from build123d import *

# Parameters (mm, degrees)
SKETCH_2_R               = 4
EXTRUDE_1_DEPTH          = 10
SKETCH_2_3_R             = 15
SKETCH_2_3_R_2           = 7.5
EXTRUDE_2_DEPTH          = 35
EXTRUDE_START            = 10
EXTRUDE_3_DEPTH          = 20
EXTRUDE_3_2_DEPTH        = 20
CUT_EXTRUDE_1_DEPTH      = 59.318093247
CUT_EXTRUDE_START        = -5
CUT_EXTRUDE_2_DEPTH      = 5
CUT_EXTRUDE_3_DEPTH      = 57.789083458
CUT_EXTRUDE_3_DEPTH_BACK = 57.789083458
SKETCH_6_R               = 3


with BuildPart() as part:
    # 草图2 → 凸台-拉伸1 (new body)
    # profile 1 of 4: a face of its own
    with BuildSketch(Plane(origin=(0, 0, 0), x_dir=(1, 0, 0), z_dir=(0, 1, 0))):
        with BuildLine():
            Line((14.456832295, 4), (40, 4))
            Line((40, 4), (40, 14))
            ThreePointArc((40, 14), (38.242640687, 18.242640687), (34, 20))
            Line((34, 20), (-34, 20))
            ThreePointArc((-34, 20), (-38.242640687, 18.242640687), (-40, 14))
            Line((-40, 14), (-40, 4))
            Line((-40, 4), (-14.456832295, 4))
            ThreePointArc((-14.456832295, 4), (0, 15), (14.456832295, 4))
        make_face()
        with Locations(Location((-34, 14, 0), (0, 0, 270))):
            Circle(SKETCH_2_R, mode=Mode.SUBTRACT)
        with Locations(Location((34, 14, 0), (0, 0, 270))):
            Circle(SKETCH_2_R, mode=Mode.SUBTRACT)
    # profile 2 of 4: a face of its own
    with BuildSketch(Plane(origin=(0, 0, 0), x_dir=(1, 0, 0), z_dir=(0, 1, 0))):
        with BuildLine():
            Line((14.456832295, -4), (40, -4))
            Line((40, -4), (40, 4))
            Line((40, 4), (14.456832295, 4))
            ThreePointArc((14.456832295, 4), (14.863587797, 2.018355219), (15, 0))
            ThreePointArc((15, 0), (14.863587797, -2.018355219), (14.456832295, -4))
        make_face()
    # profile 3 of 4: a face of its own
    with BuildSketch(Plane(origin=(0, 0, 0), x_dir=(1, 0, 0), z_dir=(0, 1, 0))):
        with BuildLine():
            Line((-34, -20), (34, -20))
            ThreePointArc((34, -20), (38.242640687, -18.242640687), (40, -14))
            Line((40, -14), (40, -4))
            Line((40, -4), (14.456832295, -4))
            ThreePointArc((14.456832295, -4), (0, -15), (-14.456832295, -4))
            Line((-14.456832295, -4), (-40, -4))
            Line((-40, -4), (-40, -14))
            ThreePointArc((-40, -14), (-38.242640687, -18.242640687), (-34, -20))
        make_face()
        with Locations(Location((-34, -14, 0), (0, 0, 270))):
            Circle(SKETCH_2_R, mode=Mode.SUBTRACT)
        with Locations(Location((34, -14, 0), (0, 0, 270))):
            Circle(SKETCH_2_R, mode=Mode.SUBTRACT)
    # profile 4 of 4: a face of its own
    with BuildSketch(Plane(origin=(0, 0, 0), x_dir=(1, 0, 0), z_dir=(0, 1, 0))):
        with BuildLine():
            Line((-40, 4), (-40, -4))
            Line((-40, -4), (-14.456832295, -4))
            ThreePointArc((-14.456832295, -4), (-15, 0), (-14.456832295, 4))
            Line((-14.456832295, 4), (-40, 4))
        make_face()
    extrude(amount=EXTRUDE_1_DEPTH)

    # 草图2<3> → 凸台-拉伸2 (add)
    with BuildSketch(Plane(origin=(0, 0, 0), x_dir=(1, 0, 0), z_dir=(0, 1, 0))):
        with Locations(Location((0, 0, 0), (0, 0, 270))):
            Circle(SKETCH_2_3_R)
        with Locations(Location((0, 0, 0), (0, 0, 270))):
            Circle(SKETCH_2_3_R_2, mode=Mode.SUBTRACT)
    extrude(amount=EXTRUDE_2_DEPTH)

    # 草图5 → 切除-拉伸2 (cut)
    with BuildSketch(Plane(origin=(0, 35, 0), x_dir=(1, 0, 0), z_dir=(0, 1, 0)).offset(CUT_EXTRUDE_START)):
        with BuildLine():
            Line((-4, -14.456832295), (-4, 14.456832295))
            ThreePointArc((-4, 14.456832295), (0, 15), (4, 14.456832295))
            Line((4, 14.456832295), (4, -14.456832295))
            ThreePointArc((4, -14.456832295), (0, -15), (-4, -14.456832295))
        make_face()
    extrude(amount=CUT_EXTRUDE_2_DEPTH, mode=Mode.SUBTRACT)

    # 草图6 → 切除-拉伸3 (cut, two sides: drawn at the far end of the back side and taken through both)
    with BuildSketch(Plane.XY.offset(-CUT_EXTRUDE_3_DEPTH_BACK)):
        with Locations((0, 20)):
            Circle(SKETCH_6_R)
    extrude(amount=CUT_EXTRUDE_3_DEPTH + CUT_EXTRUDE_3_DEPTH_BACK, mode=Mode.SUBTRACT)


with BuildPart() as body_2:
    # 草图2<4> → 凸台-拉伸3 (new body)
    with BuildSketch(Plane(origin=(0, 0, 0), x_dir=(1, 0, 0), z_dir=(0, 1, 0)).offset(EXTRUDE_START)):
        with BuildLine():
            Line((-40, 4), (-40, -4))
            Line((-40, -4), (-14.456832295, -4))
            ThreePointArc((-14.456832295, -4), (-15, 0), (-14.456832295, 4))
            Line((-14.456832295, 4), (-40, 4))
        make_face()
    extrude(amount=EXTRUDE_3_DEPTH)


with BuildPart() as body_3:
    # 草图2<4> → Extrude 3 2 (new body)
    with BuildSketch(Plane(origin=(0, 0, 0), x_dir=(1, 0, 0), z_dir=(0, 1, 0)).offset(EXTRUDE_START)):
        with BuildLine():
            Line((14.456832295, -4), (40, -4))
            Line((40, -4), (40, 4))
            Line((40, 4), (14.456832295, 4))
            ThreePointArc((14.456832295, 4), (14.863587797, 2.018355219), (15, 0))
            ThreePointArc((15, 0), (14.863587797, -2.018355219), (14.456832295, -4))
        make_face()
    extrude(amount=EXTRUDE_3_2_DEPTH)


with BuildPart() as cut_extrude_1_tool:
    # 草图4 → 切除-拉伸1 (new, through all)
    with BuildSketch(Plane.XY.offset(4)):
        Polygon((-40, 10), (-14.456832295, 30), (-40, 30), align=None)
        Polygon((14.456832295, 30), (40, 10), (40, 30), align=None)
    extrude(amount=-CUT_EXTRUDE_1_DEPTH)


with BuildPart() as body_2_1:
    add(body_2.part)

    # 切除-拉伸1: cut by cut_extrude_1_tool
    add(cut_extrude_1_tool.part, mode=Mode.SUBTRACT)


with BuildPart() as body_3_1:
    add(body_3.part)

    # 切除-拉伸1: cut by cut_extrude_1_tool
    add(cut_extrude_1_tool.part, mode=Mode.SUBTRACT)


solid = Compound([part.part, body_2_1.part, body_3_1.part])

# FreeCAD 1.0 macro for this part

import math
import FreeCAD as App
import Part
import Sketcher

V = App.Vector
Q = App.Units.Quantity


def add_polygon(sketch, points):
    """Adds a closed chain of lines whose ends are joined by coincident constraints."""
    first, n = sketch.GeometryCount, len(points)
    for a, b in zip(points, points[1:] + points[:1]):
        sketch.addGeometry(Part.LineSegment(App.Vector(*a, 0), App.Vector(*b, 0)), False)
    for i in range(n):
        sketch.addConstraint(Sketcher.Constraint("Coincident", first + i, 2, first + (i + 1) % n, 1))

doc = App.newDocument("Part")
params = doc.addObject("Spreadsheet::Sheet", "Params")
for row, (alias, value) in enumerate([
    ("sketch1_diameter", "8 mm"),
    ("sketch1_radius", "6 mm"),
    ("sketch1_radius2", "15 mm"),
    ("sketch1_width", "68 mm"),
    ("sketch1_height", "28 mm"),
    ("pad1_length", "10 mm"),
    ("sketch2_diameter", "30 mm"),
    ("sketch2_diameter2", "15 mm"),
    ("pad2_length", "35 mm"),
    ("sketch3_radius", "15 mm"),
    ("pocket1_length", "5 mm"),
    ("sketch4_diameter", "6 mm"),
    ("sketch5_radius", "15 mm"),
    ("sketch5_height", "8 mm"),
    ("pad3_length", "20 mm"),
    ("sketch6_radius", "15 mm"),
    ("sketch6_height", "8 mm"),
    ("pad4_length", "20 mm"),
    ("sketch7_height", "20 mm"),
    ("pad5_length", "59.318093 mm"),
], start=1):
    params.set(f"A{row}", alias)
    params.set(f"B{row}", "=" + value)
    params.setAlias(f"B{row}", alias)

body = doc.addObject("PartDesign::Body", "Body")

# Sketch on XZ plane
sketch1 = body.newObject("Sketcher::SketchObject", "Sketch")
sketch1.AttachmentSupport = (doc.getObject("XZ_Plane"), [""])
sketch1.MapMode = "FlatFace"
sketch1.addGeometry(Part.ArcOfCircle(Part.Circle(V(34, -14, 0), V(0, 0, 1), 6), math.radians(-90), math.radians(0)), False)
sketch1.addGeometry(Part.LineSegment(V(34, -20, 0), V(-34, -20, 0)), False)
sketch1.addGeometry(Part.ArcOfCircle(Part.Circle(V(-34, -14, 0), V(0, 0, 1), 6), math.radians(180), math.radians(270)), False)
sketch1.addGeometry(Part.LineSegment(V(-40, -14, 0), V(-40, 14, 0)), False)
sketch1.addGeometry(Part.ArcOfCircle(Part.Circle(V(-34, 14, 0), V(0, 0, 1), 6), math.radians(90), math.radians(180)), False)
sketch1.addGeometry(Part.LineSegment(V(-34, 20, 0), V(34, 20, 0)), False)
sketch1.addGeometry(Part.ArcOfCircle(Part.Circle(V(34, 14, 0), V(0, 0, 1), 6), math.radians(0), math.radians(90)), False)
sketch1.addGeometry(Part.LineSegment(V(40, 14, 0), V(40, -14, 0)), False)
sketch1.addGeometry(Part.ArcOfCircle(Part.Circle(V(0, 0, 0), V(0, 0, 1), 15), math.radians(-165), math.radians(-15)), False)
sketch1.addGeometry(Part.ArcOfCircle(Part.Circle(V(0, 0, 0), V(0, 0, 1), 15), math.radians(-15.47), math.radians(0)), False)
sketch1.addGeometry(Part.ArcOfCircle(Part.Circle(V(0, 0, 0), V(0, 0, 1), 15), math.radians(0), math.radians(15.47)), False)
sketch1.addGeometry(Part.ArcOfCircle(Part.Circle(V(0, 0, 0), V(0, 0, 1), 15), math.radians(15), math.radians(165)), False)
sketch1.addGeometry(Part.ArcOfCircle(Part.Circle(V(0, 0, 0), V(0, 0, 1), 15), math.radians(165), math.radians(195)), False)
sketch1.addGeometry(Part.Circle(V(-34, -14, 0), V(0, 0, 1), 4), False)
sketch1.addGeometry(Part.Circle(V(34, -14, 0), V(0, 0, 1), 4), False)
sketch1.addGeometry(Part.Circle(V(-34, 14, 0), V(0, 0, 1), 4), False)
sketch1.addGeometry(Part.Circle(V(34, 14, 0), V(0, 0, 1), 4), False)
sketch1.addConstraint(Sketcher.Constraint("Tangent", 0, 1, 1, 1))
sketch1.addConstraint(Sketcher.Constraint("Tangent", 1, 2, 2, 2))
sketch1.addConstraint(Sketcher.Constraint("Tangent", 2, 1, 3, 1))
sketch1.addConstraint(Sketcher.Constraint("Tangent", 3, 2, 4, 2))
sketch1.addConstraint(Sketcher.Constraint("Tangent", 4, 1, 5, 1))
sketch1.addConstraint(Sketcher.Constraint("Tangent", 5, 2, 6, 2))
sketch1.addConstraint(Sketcher.Constraint("Tangent", 6, 1, 7, 1))
sketch1.addConstraint(Sketcher.Constraint("Tangent", 7, 2, 0, 2))
sketch1.addConstraint(Sketcher.Constraint("Tangent", 8, 2, 9, 1))
sketch1.addConstraint(Sketcher.Constraint("Tangent", 9, 2, 10, 1))
sketch1.addConstraint(Sketcher.Constraint("Tangent", 10, 2, 11, 1))
sketch1.addConstraint(Sketcher.Constraint("Tangent", 11, 2, 12, 1))
sketch1.addConstraint(Sketcher.Constraint("Tangent", 12, 2, 8, 1))
sketch1.addConstraint(Sketcher.Constraint("Horizontal", 1))
sketch1.addConstraint(Sketcher.Constraint("Vertical", 3))
sketch1.addConstraint(Sketcher.Constraint("Horizontal", 5))
sketch1.addConstraint(Sketcher.Constraint("Vertical", 7))
sketch1.addConstraint(Sketcher.Constraint("Coincident", 8, 3, -1, 1))
sketch1.addConstraint(Sketcher.Constraint("Coincident", 10, 3, -1, 1))
sketch1.addConstraint(Sketcher.Constraint("Coincident", 13, 3, 2, 3))
sketch1.addConstraint(Sketcher.Constraint("Coincident", 14, 3, 0, 3))
sketch1.addConstraint(Sketcher.Constraint("Coincident", 15, 3, 4, 3))
sketch1.addConstraint(Sketcher.Constraint("Coincident", 16, 3, 6, 3))
sketch1.addConstraint(Sketcher.Constraint("Equal", 0, 2))
sketch1.addConstraint(Sketcher.Constraint("Equal", 2, 4))
sketch1.addConstraint(Sketcher.Constraint("Equal", 4, 6))
sketch1.addConstraint(Sketcher.Constraint("Equal", 13, 14))
sketch1.addConstraint(Sketcher.Constraint("Equal", 14, 15))
sketch1.addConstraint(Sketcher.Constraint("Equal", 15, 16))
sketch1.addConstraint(Sketcher.Constraint("Symmetric", 0, 3, 4, 3, -1, 1))
sketch1.addConstraint(Sketcher.Constraint("PointOnObject", 9, 2, -1))
sketch1.addConstraint(Sketcher.Constraint("Horizontal", 10, 2, 11, 2))
sketch1.addConstraint(Sketcher.Constraint("Horizontal", 8, 2, 12, 2))
sketch1.addConstraint(Sketcher.Constraint("Vertical", 8, 2, 10, 2))
sketch1.addConstraint(Sketcher.Constraint("Diameter", 13, Q("8 mm")))
sketch1.addConstraint(Sketcher.Constraint("Radius", 0, Q("6 mm")))
sketch1.addConstraint(Sketcher.Constraint("Radius", 8, Q("15 mm")))
sketch1.addConstraint(Sketcher.Constraint("DistanceX", 1, 2, 1, 1, Q("68 mm")))
sketch1.addConstraint(Sketcher.Constraint("DistanceY", 3, 1, 3, 2, Q("28 mm")))
sketch1.addConstraint(Sketcher.Constraint("DistanceY", 8, 2, -1, 1, Q("4 mm")))
sketch1.setExpression("Constraints[34]", "Params.sketch1_diameter")
sketch1.setExpression("Constraints[35]", "Params.sketch1_radius")
sketch1.setExpression("Constraints[36]", "Params.sketch1_radius2")
sketch1.setExpression("Constraints[37]", "Params.sketch1_width")
sketch1.setExpression("Constraints[38]", "Params.sketch1_height")
pad1 = body.newObject("PartDesign::Pad", "Pad")
pad1.Profile = sketch1
pad1.setExpression("Length", "Params.pad1_length")
pad1.Reversed = True

# Sketch on XZ plane
sketch2 = body.newObject("Sketcher::SketchObject", "Sketch001")
sketch2.AttachmentSupport = (doc.getObject("XZ_Plane"), [""])
sketch2.MapMode = "FlatFace"
sketch2.addGeometry(Part.Circle(V(0, 0, 0), V(0, 0, 1), 15), False)
sketch2.addGeometry(Part.Circle(V(0, 0, 0), V(0, 0, 1), 8), False)
sketch2.addConstraint(Sketcher.Constraint("Coincident", 0, 3, -1, 1))
sketch2.addConstraint(Sketcher.Constraint("Coincident", 1, 3, -1, 1))
sketch2.addConstraint(Sketcher.Constraint("Diameter", 0, Q("30 mm")))
sketch2.addConstraint(Sketcher.Constraint("Diameter", 1, Q("15 mm")))
sketch2.setExpression("Constraints[2]", "Params.sketch2_diameter")
sketch2.setExpression("Constraints[3]", "Params.sketch2_diameter2")
pad2 = body.newObject("PartDesign::Pad", "Pad001")
pad2.Profile = sketch2
pad2.setExpression("Length", "Params.pad2_length")
pad2.Reversed = True

# Sketch on XZ plane
sketch3 = body.newObject("Sketcher::SketchObject", "Sketch002")
sketch3.AttachmentSupport = (doc.getObject("XZ_Plane"), [""])
sketch3.MapMode = "FlatFace"
sketch3.AttachmentOffset = App.Placement(V(0, 0, -30), App.Rotation())
sketch3.addGeometry(Part.LineSegment(V(-4, -14, 0), V(-4, 14, 0)), False)
sketch3.addGeometry(Part.ArcOfCircle(Part.Circle(V(0, 0, 0), V(0, 0, 1), 15), math.radians(75), math.radians(105)), False)
sketch3.addGeometry(Part.LineSegment(V(4, 14, 0), V(4, -14, 0)), False)
sketch3.addGeometry(Part.ArcOfCircle(Part.Circle(V(0, 0, 0), V(0, 0, 1), 15), math.radians(-105), math.radians(-75)), False)
sketch3.addConstraint(Sketcher.Constraint("Coincident", 0, 2, 1, 2))
sketch3.addConstraint(Sketcher.Constraint("Coincident", 1, 1, 2, 1))
sketch3.addConstraint(Sketcher.Constraint("Coincident", 2, 2, 3, 2))
sketch3.addConstraint(Sketcher.Constraint("Coincident", 3, 1, 0, 1))
sketch3.addConstraint(Sketcher.Constraint("Vertical", 0))
sketch3.addConstraint(Sketcher.Constraint("Vertical", 2))
sketch3.addConstraint(Sketcher.Constraint("Coincident", 1, 3, -1, 1))
sketch3.addConstraint(Sketcher.Constraint("Coincident", 3, 3, -1, 1))
sketch3.addConstraint(Sketcher.Constraint("Equal", 1, 3))
sketch3.addConstraint(Sketcher.Constraint("Horizontal", 0, 2, 1, 1))
sketch3.addConstraint(Sketcher.Constraint("Radius", 1, Q("15 mm")))
sketch3.addConstraint(Sketcher.Constraint("DistanceX", 0, 2, -1, 1, Q("4 mm")))
sketch3.setExpression("Constraints[10]", "Params.sketch3_radius")
pocket1 = body.newObject("PartDesign::Pocket", "Pocket")
pocket1.Profile = sketch3
pocket1.setExpression("Length", "Params.pocket1_length")

# Sketch on XY plane
sketch4 = body.newObject("Sketcher::SketchObject", "Sketch003")
sketch4.AttachmentSupport = (doc.getObject("XY_Plane"), [""])
sketch4.MapMode = "FlatFace"
sketch4.addGeometry(Part.Circle(V(0, 20, 0), V(0, 0, 1), 3), False)
sketch4.addConstraint(Sketcher.Constraint("PointOnObject", 0, 3, -2))
sketch4.addConstraint(Sketcher.Constraint("Diameter", 0, Q("6 mm")))
sketch4.addConstraint(Sketcher.Constraint("DistanceY", -1, 1, 0, 3, Q("20 mm")))
sketch4.setExpression("Constraints[1]", "Params.sketch4_diameter")
pocket2 = body.newObject("PartDesign::Pocket", "Pocket001")
pocket2.Profile = sketch4
pocket2.Type = "ThroughAll"
pocket2.Midplane = True
body2 = doc.addObject("PartDesign::Body", "Body001")

# Sketch on XZ plane
sketch5 = body2.newObject("Sketcher::SketchObject", "Sketch004")
sketch5.AttachmentSupport = (doc.getObject("XZ_Plane001"), [""])
sketch5.MapMode = "FlatFace"
sketch5.AttachmentOffset = App.Placement(V(0, 0, -10), App.Rotation())
sketch5.addGeometry(Part.LineSegment(V(-40, -4, 0), V(-40, 4, 0)), False)
sketch5.addGeometry(Part.LineSegment(V(-40, 4, 0), V(-14, 4, 0)), False)
sketch5.addGeometry(Part.ArcOfCircle(Part.Circle(V(0, 0, 0), V(0, 0, 1), 15), math.radians(165), math.radians(195)), False)
sketch5.addGeometry(Part.LineSegment(V(-14, -4, 0), V(-40, -4, 0)), False)
sketch5.addConstraint(Sketcher.Constraint("Coincident", 0, 2, 1, 1))
sketch5.addConstraint(Sketcher.Constraint("Coincident", 1, 2, 2, 1))
sketch5.addConstraint(Sketcher.Constraint("Coincident", 2, 2, 3, 1))
sketch5.addConstraint(Sketcher.Constraint("Coincident", 3, 2, 0, 1))
sketch5.addConstraint(Sketcher.Constraint("Vertical", 0))
sketch5.addConstraint(Sketcher.Constraint("Horizontal", 1))
sketch5.addConstraint(Sketcher.Constraint("Horizontal", 3))
sketch5.addConstraint(Sketcher.Constraint("Coincident", 2, 3, -1, 1))
sketch5.addConstraint(Sketcher.Constraint("Vertical", 1, 2, 2, 2))
sketch5.addConstraint(Sketcher.Constraint("Radius", 2, Q("15 mm")))
sketch5.addConstraint(Sketcher.Constraint("DistanceY", 0, 1, 0, 2, Q("8 mm")))
sketch5.addConstraint(Sketcher.Constraint("DistanceX", 0, 2, -1, 1, Q("40 mm")))
sketch5.setExpression("Constraints[9]", "Params.sketch5_radius")
sketch5.setExpression("Constraints[10]", "Params.sketch5_height")
pad3 = body2.newObject("PartDesign::Pad", "Pad002")
pad3.Profile = sketch5
pad3.setExpression("Length", "Params.pad3_length")
pad3.Reversed = True
body3 = doc.addObject("PartDesign::Body", "Body002")

# Sketch on XZ plane
sketch6 = body3.newObject("Sketcher::SketchObject", "Sketch005")
sketch6.AttachmentSupport = (doc.getObject("XZ_Plane002"), [""])
sketch6.MapMode = "FlatFace"
sketch6.AttachmentOffset = App.Placement(V(0, 0, -10), App.Rotation())
sketch6.addGeometry(Part.LineSegment(V(14.5, 4, 0), V(40, 4, 0)), False)
sketch6.addGeometry(Part.LineSegment(V(40, 4, 0), V(40, -4, 0)), False)
sketch6.addGeometry(Part.LineSegment(V(40, -4, 0), V(14.5, -4, 0)), False)
sketch6.addGeometry(Part.ArcOfCircle(Part.Circle(V(0, 0, 0), V(0, 0, 1), 15), math.radians(-15.47), math.radians(0)), False)
sketch6.addGeometry(Part.ArcOfCircle(Part.Circle(V(0, 0, 0), V(0, 0, 1), 15), math.radians(0), math.radians(15.47)), False)
sketch6.addConstraint(Sketcher.Constraint("Coincident", 0, 2, 1, 1))
sketch6.addConstraint(Sketcher.Constraint("Coincident", 1, 2, 2, 1))
sketch6.addConstraint(Sketcher.Constraint("Coincident", 2, 2, 3, 1))
sketch6.addConstraint(Sketcher.Constraint("Tangent", 3, 2, 4, 1))
sketch6.addConstraint(Sketcher.Constraint("Coincident", 4, 2, 0, 1))
sketch6.addConstraint(Sketcher.Constraint("Horizontal", 0))
sketch6.addConstraint(Sketcher.Constraint("Vertical", 1))
sketch6.addConstraint(Sketcher.Constraint("Horizontal", 2))
sketch6.addConstraint(Sketcher.Constraint("Coincident", 3, 3, -1, 1))
sketch6.addConstraint(Sketcher.Constraint("Equal", 3, 4))
sketch6.addConstraint(Sketcher.Constraint("PointOnObject", 3, 2, -1))
sketch6.addConstraint(Sketcher.Constraint("Vertical", 2, 2, 4, 2))
sketch6.addConstraint(Sketcher.Constraint("Radius", 3, Q("15 mm")))
sketch6.addConstraint(Sketcher.Constraint("DistanceY", 1, 2, 1, 1, Q("8 mm")))
sketch6.addConstraint(Sketcher.Constraint("DistanceX", -1, 1, 0, 2, Q("40 mm")))
sketch6.setExpression("Constraints[12]", "Params.sketch6_radius")
sketch6.setExpression("Constraints[13]", "Params.sketch6_height")
pad4 = body3.newObject("PartDesign::Pad", "Pad003")
pad4.Profile = sketch6
pad4.setExpression("Length", "Params.pad4_length")
pad4.Reversed = True
body4 = doc.addObject("PartDesign::Body", "Body003")
body4.AllowCompound = True

# Sketch on XY plane
sketch7 = body4.newObject("Sketcher::SketchObject", "Sketch006")
sketch7.AttachmentSupport = (doc.getObject("XY_Plane003"), [""])
sketch7.MapMode = "FlatFace"
sketch7.AttachmentOffset = App.Placement(V(0, 0, 4), App.Rotation())
add_polygon(sketch7, [(-40, 10), (-14, 30), (-40, 30)])  # lines 0-2
add_polygon(sketch7, [(14, 30), (40, 10), (40, 30)])  # lines 3-5
sketch7.addConstraint(Sketcher.Constraint("Horizontal", 1))
sketch7.addConstraint(Sketcher.Constraint("Vertical", 2))
sketch7.addConstraint(Sketcher.Constraint("Vertical", 4))
sketch7.addConstraint(Sketcher.Constraint("Horizontal", 5))
sketch7.addConstraint(Sketcher.Constraint("Symmetric", 2, 2, 3, 2, -2))
sketch7.addConstraint(Sketcher.Constraint("Symmetric", 0, 2, 5, 2, -2))
sketch7.addConstraint(Sketcher.Constraint("DistanceY", 2, 2, 2, 1, Q("20 mm")))
sketch7.addConstraint(Sketcher.Constraint("DistanceY", -1, 1, 0, 2, Q("30 mm")))
sketch7.addConstraint(Sketcher.Constraint("DistanceX", 1, 2, -1, 1, Q("40 mm")))
sketch7.addConstraint(Sketcher.Constraint("Distance", 0, Q("32.441538 mm")))
sketch7.setExpression("Constraints[12]", "Params.sketch7_height")
pad5 = body4.newObject("PartDesign::Pad", "Pad004")
pad5.Profile = sketch7
pad5.setExpression("Length", "Params.pad5_length")
pad5.Reversed = True
doc.recompute()

body5 = doc.addObject("PartDesign::Body", "Body004")
body5.BaseFeature = body4
boolean = body2.newObject("PartDesign::Boolean", "Boolean")
boolean.Type = "Cut"
boolean.addObjects([body5])
doc.recompute()

boolean2 = body3.newObject("PartDesign::Boolean", "Boolean001")
boolean2.Type = "Cut"
boolean2.addObjects([body4])

doc.recompute()
